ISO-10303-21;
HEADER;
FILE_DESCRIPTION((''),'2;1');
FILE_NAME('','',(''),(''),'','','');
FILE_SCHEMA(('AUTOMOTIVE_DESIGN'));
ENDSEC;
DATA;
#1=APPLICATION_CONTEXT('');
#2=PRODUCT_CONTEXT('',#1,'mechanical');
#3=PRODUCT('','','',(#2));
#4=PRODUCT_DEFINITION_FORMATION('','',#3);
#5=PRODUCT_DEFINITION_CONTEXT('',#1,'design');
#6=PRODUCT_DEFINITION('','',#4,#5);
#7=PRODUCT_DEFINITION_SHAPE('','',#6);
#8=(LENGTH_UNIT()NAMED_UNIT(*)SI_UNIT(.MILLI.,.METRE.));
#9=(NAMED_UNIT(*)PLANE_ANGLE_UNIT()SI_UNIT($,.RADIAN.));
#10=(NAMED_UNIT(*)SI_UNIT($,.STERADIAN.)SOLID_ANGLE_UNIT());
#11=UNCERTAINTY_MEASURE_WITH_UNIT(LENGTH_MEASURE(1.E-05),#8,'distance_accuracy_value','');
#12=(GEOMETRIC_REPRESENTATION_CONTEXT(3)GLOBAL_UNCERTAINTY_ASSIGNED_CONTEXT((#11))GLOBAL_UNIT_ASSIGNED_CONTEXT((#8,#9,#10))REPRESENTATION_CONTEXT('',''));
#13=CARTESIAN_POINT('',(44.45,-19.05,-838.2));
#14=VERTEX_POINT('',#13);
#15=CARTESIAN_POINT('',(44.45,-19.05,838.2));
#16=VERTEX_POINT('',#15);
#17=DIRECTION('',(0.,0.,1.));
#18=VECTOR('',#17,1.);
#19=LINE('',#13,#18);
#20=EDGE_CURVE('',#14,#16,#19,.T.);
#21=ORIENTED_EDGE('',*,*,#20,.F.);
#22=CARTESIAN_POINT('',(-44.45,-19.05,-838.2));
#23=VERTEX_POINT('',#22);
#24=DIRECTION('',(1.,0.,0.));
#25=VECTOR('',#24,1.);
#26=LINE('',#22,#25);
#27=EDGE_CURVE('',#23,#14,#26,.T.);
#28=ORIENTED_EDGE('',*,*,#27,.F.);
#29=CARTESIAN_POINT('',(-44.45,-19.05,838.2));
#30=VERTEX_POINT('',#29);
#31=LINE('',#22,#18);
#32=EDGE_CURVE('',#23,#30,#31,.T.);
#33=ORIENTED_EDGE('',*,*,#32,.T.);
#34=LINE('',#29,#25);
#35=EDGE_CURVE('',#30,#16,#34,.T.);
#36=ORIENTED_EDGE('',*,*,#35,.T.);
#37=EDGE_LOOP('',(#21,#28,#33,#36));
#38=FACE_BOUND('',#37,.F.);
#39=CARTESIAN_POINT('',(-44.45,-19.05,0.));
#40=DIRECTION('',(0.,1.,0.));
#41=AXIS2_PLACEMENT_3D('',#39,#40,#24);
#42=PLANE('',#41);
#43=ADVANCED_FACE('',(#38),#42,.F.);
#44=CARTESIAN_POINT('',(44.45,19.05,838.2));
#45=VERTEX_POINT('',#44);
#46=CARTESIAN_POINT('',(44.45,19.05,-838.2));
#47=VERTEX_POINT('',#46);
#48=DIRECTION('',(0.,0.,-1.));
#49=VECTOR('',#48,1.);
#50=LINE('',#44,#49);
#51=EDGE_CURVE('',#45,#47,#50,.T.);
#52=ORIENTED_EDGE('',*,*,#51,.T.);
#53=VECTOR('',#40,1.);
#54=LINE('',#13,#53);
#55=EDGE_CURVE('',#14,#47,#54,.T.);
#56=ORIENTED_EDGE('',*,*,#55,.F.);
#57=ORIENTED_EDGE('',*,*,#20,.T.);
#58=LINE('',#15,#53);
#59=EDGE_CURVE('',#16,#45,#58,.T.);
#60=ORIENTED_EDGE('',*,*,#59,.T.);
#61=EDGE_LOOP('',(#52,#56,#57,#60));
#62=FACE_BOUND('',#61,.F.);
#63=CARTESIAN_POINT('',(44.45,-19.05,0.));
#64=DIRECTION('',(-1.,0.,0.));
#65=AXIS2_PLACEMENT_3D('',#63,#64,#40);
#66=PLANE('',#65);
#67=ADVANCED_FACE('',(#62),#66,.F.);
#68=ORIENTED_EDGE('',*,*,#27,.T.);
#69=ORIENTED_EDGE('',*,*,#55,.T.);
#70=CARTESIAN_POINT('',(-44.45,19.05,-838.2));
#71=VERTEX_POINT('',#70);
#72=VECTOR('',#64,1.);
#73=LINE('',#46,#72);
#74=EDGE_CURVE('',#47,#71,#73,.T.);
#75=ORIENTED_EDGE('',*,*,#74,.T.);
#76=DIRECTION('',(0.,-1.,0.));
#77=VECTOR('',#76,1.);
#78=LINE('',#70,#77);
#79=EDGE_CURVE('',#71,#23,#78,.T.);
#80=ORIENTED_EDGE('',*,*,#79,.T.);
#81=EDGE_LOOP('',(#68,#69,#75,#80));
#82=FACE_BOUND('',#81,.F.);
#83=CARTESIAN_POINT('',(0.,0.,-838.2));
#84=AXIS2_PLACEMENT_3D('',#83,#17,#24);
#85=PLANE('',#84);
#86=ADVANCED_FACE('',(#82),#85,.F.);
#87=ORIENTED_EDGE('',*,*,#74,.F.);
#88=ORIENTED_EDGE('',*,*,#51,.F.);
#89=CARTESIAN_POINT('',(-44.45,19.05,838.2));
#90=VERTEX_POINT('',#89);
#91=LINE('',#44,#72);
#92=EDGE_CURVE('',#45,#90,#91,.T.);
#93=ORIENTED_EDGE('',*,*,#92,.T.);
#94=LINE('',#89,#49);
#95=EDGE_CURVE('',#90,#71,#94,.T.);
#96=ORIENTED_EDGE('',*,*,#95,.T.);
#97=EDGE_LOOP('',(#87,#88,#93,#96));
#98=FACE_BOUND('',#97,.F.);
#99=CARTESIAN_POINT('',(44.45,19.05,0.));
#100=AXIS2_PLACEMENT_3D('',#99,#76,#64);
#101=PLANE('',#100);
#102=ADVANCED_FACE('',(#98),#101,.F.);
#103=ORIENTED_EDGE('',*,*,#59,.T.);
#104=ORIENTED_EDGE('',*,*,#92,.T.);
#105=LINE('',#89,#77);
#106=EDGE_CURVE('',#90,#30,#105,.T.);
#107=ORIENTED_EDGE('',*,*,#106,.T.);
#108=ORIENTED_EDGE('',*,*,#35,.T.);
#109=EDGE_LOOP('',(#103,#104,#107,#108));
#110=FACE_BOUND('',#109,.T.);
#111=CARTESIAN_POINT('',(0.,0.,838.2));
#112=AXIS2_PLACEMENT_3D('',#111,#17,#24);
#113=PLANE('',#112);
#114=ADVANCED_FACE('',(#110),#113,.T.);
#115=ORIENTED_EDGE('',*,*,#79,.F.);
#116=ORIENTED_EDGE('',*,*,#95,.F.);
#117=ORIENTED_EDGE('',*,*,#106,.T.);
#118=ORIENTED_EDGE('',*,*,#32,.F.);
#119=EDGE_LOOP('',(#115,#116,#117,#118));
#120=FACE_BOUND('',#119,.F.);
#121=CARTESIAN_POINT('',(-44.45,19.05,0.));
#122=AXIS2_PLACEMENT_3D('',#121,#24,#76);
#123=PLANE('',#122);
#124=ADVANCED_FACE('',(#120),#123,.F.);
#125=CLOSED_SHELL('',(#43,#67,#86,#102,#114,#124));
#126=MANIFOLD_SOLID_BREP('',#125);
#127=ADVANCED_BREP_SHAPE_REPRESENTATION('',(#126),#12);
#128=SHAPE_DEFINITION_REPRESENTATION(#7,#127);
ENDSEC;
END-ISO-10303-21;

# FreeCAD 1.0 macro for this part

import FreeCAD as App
import Part
import Sketcher

V = App.Vector
Q = App.Units.Quantity


def add_polygon(sketch, points):
    """Adds a closed chain of lines whose ends are joined by coincident constraints."""
    first, n = sketch.GeometryCount, len(points)
    for a, b in zip(points, points[1:] + points[:1]):
        sketch.addGeometry(Part.LineSegment(App.Vector(*a, 0), App.Vector(*b, 0)), False)
    for i in range(n):
        sketch.addConstraint(Sketcher.Constraint("Coincident", first + i, 2, first + (i + 1) % n, 1))

doc = App.newDocument("Part")
body = doc.addObject("PartDesign::Body", "Body")

sketch1 = body.newObject("Sketcher::SketchObject", "Sketch")
sketch1.AttachmentSupport = (doc.getObject("XY_Plane"), [""])
sketch1.MapMode = "FlatFace"
add_polygon(sketch1, [(-44, 19), (-44, -19), (44, -19), (44, 19)])
sketch1.addConstraint(Sketcher.Constraint("Vertical", 0))
sketch1.addConstraint(Sketcher.Constraint("Horizontal", 1))
sketch1.addConstraint(Sketcher.Constraint("Vertical", 2))
sketch1.addConstraint(Sketcher.Constraint("Horizontal", 3))
sketch1.addConstraint(Sketcher.Constraint("Symmetric", 0, 2, 2, 2, -1, 1))
sketch1.addConstraint(Sketcher.Constraint("DistanceX", 1, 1, 1, 2, Q("3.5 in")))
sketch1.addConstraint(Sketcher.Constraint("DistanceY", 0, 2, 0, 1, Q("1.5 in")))
pad1 = body.newObject("PartDesign::Pad", "Pad")
pad1.Profile = sketch1
pad1.Length = Q("66 in")
pad1.Midplane = True

doc.recompute()
